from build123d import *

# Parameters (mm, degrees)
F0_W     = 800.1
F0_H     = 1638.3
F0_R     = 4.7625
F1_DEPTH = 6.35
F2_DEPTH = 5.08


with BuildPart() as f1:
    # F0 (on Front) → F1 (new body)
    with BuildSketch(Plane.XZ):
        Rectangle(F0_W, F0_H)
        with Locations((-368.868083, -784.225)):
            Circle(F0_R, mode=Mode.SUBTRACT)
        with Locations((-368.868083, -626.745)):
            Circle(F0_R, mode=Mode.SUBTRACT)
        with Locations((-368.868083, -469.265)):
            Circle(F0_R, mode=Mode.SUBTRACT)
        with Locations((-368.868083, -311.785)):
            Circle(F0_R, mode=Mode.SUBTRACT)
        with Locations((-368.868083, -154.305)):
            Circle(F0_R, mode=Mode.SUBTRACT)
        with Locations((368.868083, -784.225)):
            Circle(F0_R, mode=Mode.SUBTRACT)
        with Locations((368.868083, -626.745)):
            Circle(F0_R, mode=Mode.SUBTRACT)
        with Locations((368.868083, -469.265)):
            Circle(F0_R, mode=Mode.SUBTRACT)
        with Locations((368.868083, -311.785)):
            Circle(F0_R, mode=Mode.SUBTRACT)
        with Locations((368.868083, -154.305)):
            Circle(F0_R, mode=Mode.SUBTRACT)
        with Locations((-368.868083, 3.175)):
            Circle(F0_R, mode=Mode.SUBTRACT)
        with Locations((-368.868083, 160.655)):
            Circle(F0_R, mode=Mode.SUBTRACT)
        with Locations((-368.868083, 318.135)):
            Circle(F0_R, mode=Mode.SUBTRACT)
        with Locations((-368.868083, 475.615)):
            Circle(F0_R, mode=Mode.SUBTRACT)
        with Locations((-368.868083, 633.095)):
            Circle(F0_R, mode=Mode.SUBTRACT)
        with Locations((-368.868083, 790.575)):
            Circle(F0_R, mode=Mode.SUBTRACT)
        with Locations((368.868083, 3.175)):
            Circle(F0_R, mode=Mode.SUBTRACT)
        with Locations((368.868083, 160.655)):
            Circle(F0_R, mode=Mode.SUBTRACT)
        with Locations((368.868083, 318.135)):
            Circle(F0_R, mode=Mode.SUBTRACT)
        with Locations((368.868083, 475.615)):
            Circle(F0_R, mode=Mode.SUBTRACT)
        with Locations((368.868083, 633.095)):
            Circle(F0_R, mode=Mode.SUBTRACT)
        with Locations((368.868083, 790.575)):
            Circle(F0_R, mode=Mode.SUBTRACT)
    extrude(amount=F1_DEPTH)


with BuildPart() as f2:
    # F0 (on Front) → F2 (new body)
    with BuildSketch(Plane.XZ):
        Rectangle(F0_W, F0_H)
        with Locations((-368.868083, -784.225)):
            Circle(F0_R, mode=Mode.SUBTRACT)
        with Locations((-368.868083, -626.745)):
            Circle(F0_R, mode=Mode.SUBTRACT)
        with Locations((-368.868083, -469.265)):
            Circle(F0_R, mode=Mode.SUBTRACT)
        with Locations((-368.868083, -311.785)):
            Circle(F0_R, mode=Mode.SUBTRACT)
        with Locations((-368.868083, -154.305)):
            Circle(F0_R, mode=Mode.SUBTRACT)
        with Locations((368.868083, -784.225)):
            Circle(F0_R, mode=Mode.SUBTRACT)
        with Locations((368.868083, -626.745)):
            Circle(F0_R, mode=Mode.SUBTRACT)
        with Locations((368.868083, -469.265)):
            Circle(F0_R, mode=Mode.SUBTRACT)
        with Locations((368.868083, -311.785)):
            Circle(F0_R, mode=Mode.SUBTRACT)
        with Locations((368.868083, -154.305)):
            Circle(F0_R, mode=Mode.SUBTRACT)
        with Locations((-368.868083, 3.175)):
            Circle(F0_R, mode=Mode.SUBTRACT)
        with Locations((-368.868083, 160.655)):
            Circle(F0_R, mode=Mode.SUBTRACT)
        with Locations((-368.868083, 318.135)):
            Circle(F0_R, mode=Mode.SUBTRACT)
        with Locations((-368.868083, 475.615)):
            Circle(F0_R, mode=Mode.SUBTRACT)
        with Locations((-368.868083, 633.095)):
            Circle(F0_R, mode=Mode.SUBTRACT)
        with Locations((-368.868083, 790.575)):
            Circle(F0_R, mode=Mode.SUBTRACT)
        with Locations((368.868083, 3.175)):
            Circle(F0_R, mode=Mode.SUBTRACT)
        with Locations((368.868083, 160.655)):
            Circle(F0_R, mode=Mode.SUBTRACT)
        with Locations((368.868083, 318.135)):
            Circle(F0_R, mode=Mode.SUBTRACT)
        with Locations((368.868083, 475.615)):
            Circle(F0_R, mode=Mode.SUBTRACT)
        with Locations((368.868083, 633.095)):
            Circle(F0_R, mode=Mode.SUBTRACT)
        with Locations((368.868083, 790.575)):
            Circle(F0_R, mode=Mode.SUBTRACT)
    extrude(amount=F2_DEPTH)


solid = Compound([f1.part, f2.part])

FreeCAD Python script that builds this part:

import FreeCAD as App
import Part
import Sketcher
Q = App.Units.Quantity


def add_polygon(sketch, points):
    """Adds a closed chain of lines whose ends are joined by coincident constraints."""
    first, n = sketch.GeometryCount, len(points)
    for a, b in zip(points, points[1:] + points[:1]):
        sketch.addGeometry(Part.LineSegment(App.Vector(*a, 0), App.Vector(*b, 0)), False)
    for i in range(n):
        sketch.addConstraint(Sketcher.Constraint("Coincident", first + i, 2, first + (i + 1) % n, 1))

doc = App.newDocument("Part")
body = doc.addObject("PartDesign::Body", "Body")

# Sketch on XZ plane
sketch1 = body.newObject("Sketcher::SketchObject", "Sketch")
sketch1.AttachmentSupport = (doc.getObject("XZ_Plane"), [""])
sketch1.MapMode = "FlatFace"
add_polygon(sketch1, [(-400.1, 819.1), (-400.1, -819.1), (400.1, -819.1), (400.1, 819.1)])  # lines 0-3
sketch1.addGeometry(Part.Circle(App.Vector(-368.9, -784.2, 0), App.Vector(0, 0, 1), 4.8), False)  # 4
sketch1.addGeometry(Part.Circle(App.Vector(-368.9, -626.7, 0), App.Vector(0, 0, 1), 4.8), False)  # 5
sketch1.addGeometry(Part.Circle(App.Vector(-368.9, -469.3, 0), App.Vector(0, 0, 1), 4.8), False)  # 6
sketch1.addGeometry(Part.Circle(App.Vector(-368.9, -311.8, 0), App.Vector(0, 0, 1), 4.8), False)  # 7
sketch1.addGeometry(Part.Circle(App.Vector(-368.9, -154.3, 0), App.Vector(0, 0, 1), 4.8), False)  # 8
sketch1.addGeometry(Part.Circle(App.Vector(-368.9, 3.2, 0), App.Vector(0, 0, 1), 4.8), False)  # 9
sketch1.addGeometry(Part.Circle(App.Vector(368.9, -784.2, 0), App.Vector(0, 0, 1), 4.8), False)  # 10
sketch1.addGeometry(Part.Circle(App.Vector(368.9, -626.7, 0), App.Vector(0, 0, 1), 4.8), False)  # 11
sketch1.addGeometry(Part.Circle(App.Vector(368.9, -469.3, 0), App.Vector(0, 0, 1), 4.8), False)  # 12
sketch1.addGeometry(Part.Circle(App.Vector(368.9, -311.8, 0), App.Vector(0, 0, 1), 4.8), False)  # 13
sketch1.addGeometry(Part.Circle(App.Vector(368.9, -154.3, 0), App.Vector(0, 0, 1), 4.8), False)  # 14
sketch1.addGeometry(Part.Circle(App.Vector(368.9, 3.2, 0), App.Vector(0, 0, 1), 4.8), False)  # 15
sketch1.addGeometry(Part.Circle(App.Vector(-368.9, 160.7, 0), App.Vector(0, 0, 1), 4.8), False)  # 16
sketch1.addGeometry(Part.Circle(App.Vector(-368.9, 318.1, 0), App.Vector(0, 0, 1), 4.8), False)  # 17
sketch1.addGeometry(Part.Circle(App.Vector(-368.9, 475.6, 0), App.Vector(0, 0, 1), 4.8), False)  # 18
sketch1.addGeometry(Part.Circle(App.Vector(-368.9, 633.1, 0), App.Vector(0, 0, 1), 4.8), False)  # 19
sketch1.addGeometry(Part.Circle(App.Vector(-368.9, 790.6, 0), App.Vector(0, 0, 1), 4.8), False)  # 20
sketch1.addGeometry(Part.Circle(App.Vector(368.9, 160.7, 0), App.Vector(0, 0, 1), 4.8), False)  # 21
sketch1.addGeometry(Part.Circle(App.Vector(368.9, 318.1, 0), App.Vector(0, 0, 1), 4.8), False)  # 22
sketch1.addGeometry(Part.Circle(App.Vector(368.9, 475.6, 0), App.Vector(0, 0, 1), 4.8), False)  # 23
sketch1.addGeometry(Part.Circle(App.Vector(368.9, 633.1, 0), App.Vector(0, 0, 1), 4.8), False)  # 24
sketch1.addGeometry(Part.Circle(App.Vector(368.9, 790.6, 0), App.Vector(0, 0, 1), 4.8), False)  # 25
sketch1.addConstraint(Sketcher.Constraint("Vertical", 0))
sketch1.addConstraint(Sketcher.Constraint("Horizontal", 1))
sketch1.addConstraint(Sketcher.Constraint("Vertical", 2))
sketch1.addConstraint(Sketcher.Constraint("Horizontal", 3))
sketch1.addConstraint(Sketcher.Constraint("Equal", 4, 5))
sketch1.addConstraint(Sketcher.Constraint("Equal", 5, 6))
sketch1.addConstraint(Sketcher.Constraint("Equal", 6, 7))
sketch1.addConstraint(Sketcher.Constraint("Equal", 7, 8))
sketch1.addConstraint(Sketcher.Constraint("Equal", 8, 9))
sketch1.addConstraint(Sketcher.Constraint("Equal", 9, 10))
sketch1.addConstraint(Sketcher.Constraint("Equal", 10, 11))
sketch1.addConstraint(Sketcher.Constraint("Equal", 11, 12))
sketch1.addConstraint(Sketcher.Constraint("Equal", 12, 13))
sketch1.addConstraint(Sketcher.Constraint("Equal", 13, 14))
sketch1.addConstraint(Sketcher.Constraint("Equal", 14, 15))
sketch1.addConstraint(Sketcher.Constraint("Equal", 15, 16))
sketch1.addConstraint(Sketcher.Constraint("Equal", 16, 17))
sketch1.addConstraint(Sketcher.Constraint("Equal", 17, 18))
sketch1.addConstraint(Sketcher.Constraint("Equal", 18, 19))
sketch1.addConstraint(Sketcher.Constraint("Equal", 19, 20))
sketch1.addConstraint(Sketcher.Constraint("Equal", 20, 21))
sketch1.addConstraint(Sketcher.Constraint("Equal", 21, 22))
sketch1.addConstraint(Sketcher.Constraint("Equal", 22, 23))
sketch1.addConstraint(Sketcher.Constraint("Equal", 23, 24))
sketch1.addConstraint(Sketcher.Constraint("Equal", 24, 25))
sketch1.addConstraint(Sketcher.Constraint("Symmetric", 0, 2, 2, 2, -1, 1))
sketch1.addConstraint(Sketcher.Constraint("Symmetric", 4, 3, 10, 3, -2))
sketch1.addConstraint(Sketcher.Constraint("Symmetric", 5, 3, 11, 3, -2))
sketch1.addConstraint(Sketcher.Constraint("Symmetric", 6, 3, 12, 3, -2))
sketch1.addConstraint(Sketcher.Constraint("Symmetric", 7, 3, 13, 3, -2))
sketch1.addConstraint(Sketcher.Constraint("Symmetric", 8, 3, 14, 3, -2))
sketch1.addConstraint(Sketcher.Constraint("Symmetric", 9, 3, 15, 3, -2))
sketch1.addConstraint(Sketcher.Constraint("Symmetric", 16, 3, 21, 3, -2))
sketch1.addConstraint(Sketcher.Constraint("Symmetric", 17, 3, 22, 3, -2))
sketch1.addConstraint(Sketcher.Constraint("Symmetric", 18, 3, 23, 3, -2))
sketch1.addConstraint(Sketcher.Constraint("Symmetric", 19, 3, 24, 3, -2))
sketch1.addConstraint(Sketcher.Constraint("Symmetric", 20, 3, 25, 3, -2))
sketch1.addConstraint(Sketcher.Constraint("Vertical", 4, 3, 5, 3))
sketch1.addConstraint(Sketcher.Constraint("Vertical", 5, 3, 6, 3))
sketch1.addConstraint(Sketcher.Constraint("Vertical", 6, 3, 7, 3))
sketch1.addConstraint(Sketcher.Constraint("Vertical", 7, 3, 8, 3))
sketch1.addConstraint(Sketcher.Constraint("Vertical", 8, 3, 9, 3))
sketch1.addConstraint(Sketcher.Constraint("Vertical", 9, 3, 16, 3))
sketch1.addConstraint(Sketcher.Constraint("Vertical", 16, 3, 17, 3))
sketch1.addConstraint(Sketcher.Constraint("Vertical", 17, 3, 18, 3))
sketch1.addConstraint(Sketcher.Constraint("Vertical", 18, 3, 19, 3))
sketch1.addConstraint(Sketcher.Constraint("Vertical", 19, 3, 20, 3))
sketch1.addConstraint(Sketcher.Constraint("Diameter", 4, Q("0.375 in")))
sketch1.addConstraint(Sketcher.Constraint("DistanceX", 1, 1, 1, 2, Q("31.5 in")))
sketch1.addConstraint(Sketcher.Constraint("DistanceY", 0, 2, 0, 1, Q("64.5 in")))
sketch1.addConstraint(Sketcher.Constraint("DistanceY", 4, 3, 9, 3, Q("31 in")))
sketch1.addConstraint(Sketcher.Constraint("DistanceY", 6, 3, 17, 3, Q("31 in")))
sketch1.addConstraint(Sketcher.Constraint("DistanceY", 7, 3, 18, 3, Q("31 in")))
sketch1.addConstraint(Sketcher.Constraint("DistanceY", 8, 3, 19, 3, Q("31 in")))
sketch1.addConstraint(Sketcher.Constraint("DistanceY", 9, 3, 20, 3, Q("31 in")))
sketch1.addConstraint(Sketcher.Constraint("DistanceY", 4, 3, 5, 3, Q("6.2 in")))
sketch1.addConstraint(Sketcher.Constraint("DistanceY", 5, 3, 6, 3, Q("6.2 in")))
sketch1.addConstraint(Sketcher.Constraint("DistanceY", 6, 3, 7, 3, Q("6.2 in")))
sketch1.addConstraint(Sketcher.Constraint("DistanceY", 7, 3, 8, 3, Q("6.2 in")))
sketch1.addConstraint(Sketcher.Constraint("DistanceY", 9, 3, 16, 3, Q("6.2 in")))
sketch1.addConstraint(Sketcher.Constraint("DistanceY", 4, 3, -1, 1, Q("30.875 in")))
sketch1.addConstraint(Sketcher.Constraint("DistanceX", 4, 3, -1, 1, 368.868083))
pad1 = body.newObject("PartDesign::Pad", "Pad")
pad1.Profile = sketch1
pad1.Length = Q("0.25 in")
body2 = doc.addObject("PartDesign::Body", "Body001")

# Sketch on XZ plane
sketch2 = body2.newObject("Sketcher::SketchObject", "Sketch001")
sketch2.AttachmentSupport = (doc.getObject("XZ_Plane001"), [""])
sketch2.MapMode = "FlatFace"
add_polygon(sketch2, [(-400.1, 819.1), (-400.1, -819.1), (400.1, -819.1), (400.1, 819.1)])  # lines 0-3
sketch2.addGeometry(Part.Circle(App.Vector(-368.9, -784.2, 0), App.Vector(0, 0, 1), 4.8), False)  # 4
sketch2.addGeometry(Part.Circle(App.Vector(-368.9, -626.7, 0), App.Vector(0, 0, 1), 4.8), False)  # 5
sketch2.addGeometry(Part.Circle(App.Vector(-368.9, -469.3, 0), App.Vector(0, 0, 1), 4.8), False)  # 6
sketch2.addGeometry(Part.Circle(App.Vector(-368.9, -311.8, 0), App.Vector(0, 0, 1), 4.8), False)  # 7
sketch2.addGeometry(Part.Circle(App.Vector(-368.9, -154.3, 0), App.Vector(0, 0, 1), 4.8), False)  # 8
sketch2.addGeometry(Part.Circle(App.Vector(-368.9, 3.2, 0), App.Vector(0, 0, 1), 4.8), False)  # 9
sketch2.addGeometry(Part.Circle(App.Vector(368.9, -784.2, 0), App.Vector(0, 0, 1), 4.8), False)  # 10
sketch2.addGeometry(Part.Circle(App.Vector(368.9, -626.7, 0), App.Vector(0, 0, 1), 4.8), False)  # 11
sketch2.addGeometry(Part.Circle(App.Vector(368.9, -469.3, 0), App.Vector(0, 0, 1), 4.8), False)  # 12
sketch2.addGeometry(Part.Circle(App.Vector(368.9, -311.8, 0), App.Vector(0, 0, 1), 4.8), False)  # 13
sketch2.addGeometry(Part.Circle(App.Vector(368.9, -154.3, 0), App.Vector(0, 0, 1), 4.8), False)  # 14
sketch2.addGeometry(Part.Circle(App.Vector(368.9, 3.2, 0), App.Vector(0, 0, 1), 4.8), False)  # 15
sketch2.addGeometry(Part.Circle(App.Vector(-368.9, 160.7, 0), App.Vector(0, 0, 1), 4.8), False)  # 16
sketch2.addGeometry(Part.Circle(App.Vector(-368.9, 318.1, 0), App.Vector(0, 0, 1), 4.8), False)  # 17
sketch2.addGeometry(Part.Circle(App.Vector(-368.9, 475.6, 0), App.Vector(0, 0, 1), 4.8), False)  # 18
sketch2.addGeometry(Part.Circle(App.Vector(-368.9, 633.1, 0), App.Vector(0, 0, 1), 4.8), False)  # 19
sketch2.addGeometry(Part.Circle(App.Vector(-368.9, 790.6, 0), App.Vector(0, 0, 1), 4.8), False)  # 20
sketch2.addGeometry(Part.Circle(App.Vector(368.9, 160.7, 0), App.Vector(0, 0, 1), 4.8), False)  # 21
sketch2.addGeometry(Part.Circle(App.Vector(368.9, 318.1, 0), App.Vector(0, 0, 1), 4.8), False)  # 22
sketch2.addGeometry(Part.Circle(App.Vector(368.9, 475.6, 0), App.Vector(0, 0, 1), 4.8), False)  # 23
sketch2.addGeometry(Part.Circle(App.Vector(368.9, 633.1, 0), App.Vector(0, 0, 1), 4.8), False)  # 24
sketch2.addGeometry(Part.Circle(App.Vector(368.9, 790.6, 0), App.Vector(0, 0, 1), 4.8), False)  # 25
sketch2.addConstraint(Sketcher.Constraint("Vertical", 0))
sketch2.addConstraint(Sketcher.Constraint("Horizontal", 1))
sketch2.addConstraint(Sketcher.Constraint("Vertical", 2))
sketch2.addConstraint(Sketcher.Constraint("Horizontal", 3))
sketch2.addConstraint(Sketcher.Constraint("Equal", 4, 5))
sketch2.addConstraint(Sketcher.Constraint("Equal", 5, 6))
sketch2.addConstraint(Sketcher.Constraint("Equal", 6, 7))
sketch2.addConstraint(Sketcher.Constraint("Equal", 7, 8))
sketch2.addConstraint(Sketcher.Constraint("Equal", 8, 9))
sketch2.addConstraint(Sketcher.Constraint("Equal", 9, 10))
sketch2.addConstraint(Sketcher.Constraint("Equal", 10, 11))
sketch2.addConstraint(Sketcher.Constraint("Equal", 11, 12))
sketch2.addConstraint(Sketcher.Constraint("Equal", 12, 13))
sketch2.addConstraint(Sketcher.Constraint("Equal", 13, 14))
sketch2.addConstraint(Sketcher.Constraint("Equal", 14, 15))
sketch2.addConstraint(Sketcher.Constraint("Equal", 15, 16))
sketch2.addConstraint(Sketcher.Constraint("Equal", 16, 17))
sketch2.addConstraint(Sketcher.Constraint("Equal", 17, 18))
sketch2.addConstraint(Sketcher.Constraint("Equal", 18, 19))
sketch2.addConstraint(Sketcher.Constraint("Equal", 19, 20))
sketch2.addConstraint(Sketcher.Constraint("Equal", 20, 21))
sketch2.addConstraint(Sketcher.Constraint("Equal", 21, 22))
sketch2.addConstraint(Sketcher.Constraint("Equal", 22, 23))
sketch2.addConstraint(Sketcher.Constraint("Equal", 23, 24))
sketch2.addConstraint(Sketcher.Constraint("Equal", 24, 25))
sketch2.addConstraint(Sketcher.Constraint("Symmetric", 0, 2, 2, 2, -1, 1))
sketch2.addConstraint(Sketcher.Constraint("Symmetric", 4, 3, 10, 3, -2))
sketch2.addConstraint(Sketcher.Constraint("Symmetric", 5, 3, 11, 3, -2))
sketch2.addConstraint(Sketcher.Constraint("Symmetric", 6, 3, 12, 3, -2))
sketch2.addConstraint(Sketcher.Constraint("Symmetric", 7, 3, 13, 3, -2))
sketch2.addConstraint(Sketcher.Constraint("Symmetric", 8, 3, 14, 3, -2))
sketch2.addConstraint(Sketcher.Constraint("Symmetric", 9, 3, 15, 3, -2))
sketch2.addConstraint(Sketcher.Constraint("Symmetric", 16, 3, 21, 3, -2))
sketch2.addConstraint(Sketcher.Constraint("Symmetric", 17, 3, 22, 3, -2))
sketch2.addConstraint(Sketcher.Constraint("Symmetric", 18, 3, 23, 3, -2))
sketch2.addConstraint(Sketcher.Constraint("Symmetric", 19, 3, 24, 3, -2))
sketch2.addConstraint(Sketcher.Constraint("Symmetric", 20, 3, 25, 3, -2))
sketch2.addConstraint(Sketcher.Constraint("Vertical", 4, 3, 5, 3))
sketch2.addConstraint(Sketcher.Constraint("Vertical", 5, 3, 6, 3))
sketch2.addConstraint(Sketcher.Constraint("Vertical", 6, 3, 7, 3))
sketch2.addConstraint(Sketcher.Constraint("Vertical", 7, 3, 8, 3))
sketch2.addConstraint(Sketcher.Constraint("Vertical", 8, 3, 9, 3))
sketch2.addConstraint(Sketcher.Constraint("Vertical", 9, 3, 16, 3))
sketch2.addConstraint(Sketcher.Constraint("Vertical", 16, 3, 17, 3))
sketch2.addConstraint(Sketcher.Constraint("Vertical", 17, 3, 18, 3))
sketch2.addConstraint(Sketcher.Constraint("Vertical", 18, 3, 19, 3))
sketch2.addConstraint(Sketcher.Constraint("Vertical", 19, 3, 20, 3))
sketch2.addConstraint(Sketcher.Constraint("Diameter", 4, Q("0.375 in")))
sketch2.addConstraint(Sketcher.Constraint("DistanceX", 1, 1, 1, 2, Q("31.5 in")))
sketch2.addConstraint(Sketcher.Constraint("DistanceY", 0, 2, 0, 1, Q("64.5 in")))
sketch2.addConstraint(Sketcher.Constraint("DistanceY", 4, 3, 9, 3, Q("31 in")))
sketch2.addConstraint(Sketcher.Constraint("DistanceY", 6, 3, 17, 3, Q("31 in")))
sketch2.addConstraint(Sketcher.Constraint("DistanceY", 7, 3, 18, 3, Q("31 in")))
sketch2.addConstraint(Sketcher.Constraint("DistanceY", 8, 3, 19, 3, Q("31 in")))
sketch2.addConstraint(Sketcher.Constraint("DistanceY", 9, 3, 20, 3, Q("31 in")))
sketch2.addConstraint(Sketcher.Constraint("DistanceY", 4, 3, 5, 3, Q("6.2 in")))
sketch2.addConstraint(Sketcher.Constraint("DistanceY", 5, 3, 6, 3, Q("6.2 in")))
sketch2.addConstraint(Sketcher.Constraint("DistanceY", 6, 3, 7, 3, Q("6.2 in")))
sketch2.addConstraint(Sketcher.Constraint("DistanceY", 7, 3, 8, 3, Q("6.2 in")))
sketch2.addConstraint(Sketcher.Constraint("DistanceY", 9, 3, 16, 3, Q("6.2 in")))
sketch2.addConstraint(Sketcher.Constraint("DistanceY", 4, 3, -1, 1, Q("30.875 in")))
sketch2.addConstraint(Sketcher.Constraint("DistanceX", 4, 3, -1, 1, 368.868083))
pad2 = body2.newObject("PartDesign::Pad", "Pad001")
pad2.Profile = sketch2
pad2.Length = Q("0.2 in")

doc.recompute()
